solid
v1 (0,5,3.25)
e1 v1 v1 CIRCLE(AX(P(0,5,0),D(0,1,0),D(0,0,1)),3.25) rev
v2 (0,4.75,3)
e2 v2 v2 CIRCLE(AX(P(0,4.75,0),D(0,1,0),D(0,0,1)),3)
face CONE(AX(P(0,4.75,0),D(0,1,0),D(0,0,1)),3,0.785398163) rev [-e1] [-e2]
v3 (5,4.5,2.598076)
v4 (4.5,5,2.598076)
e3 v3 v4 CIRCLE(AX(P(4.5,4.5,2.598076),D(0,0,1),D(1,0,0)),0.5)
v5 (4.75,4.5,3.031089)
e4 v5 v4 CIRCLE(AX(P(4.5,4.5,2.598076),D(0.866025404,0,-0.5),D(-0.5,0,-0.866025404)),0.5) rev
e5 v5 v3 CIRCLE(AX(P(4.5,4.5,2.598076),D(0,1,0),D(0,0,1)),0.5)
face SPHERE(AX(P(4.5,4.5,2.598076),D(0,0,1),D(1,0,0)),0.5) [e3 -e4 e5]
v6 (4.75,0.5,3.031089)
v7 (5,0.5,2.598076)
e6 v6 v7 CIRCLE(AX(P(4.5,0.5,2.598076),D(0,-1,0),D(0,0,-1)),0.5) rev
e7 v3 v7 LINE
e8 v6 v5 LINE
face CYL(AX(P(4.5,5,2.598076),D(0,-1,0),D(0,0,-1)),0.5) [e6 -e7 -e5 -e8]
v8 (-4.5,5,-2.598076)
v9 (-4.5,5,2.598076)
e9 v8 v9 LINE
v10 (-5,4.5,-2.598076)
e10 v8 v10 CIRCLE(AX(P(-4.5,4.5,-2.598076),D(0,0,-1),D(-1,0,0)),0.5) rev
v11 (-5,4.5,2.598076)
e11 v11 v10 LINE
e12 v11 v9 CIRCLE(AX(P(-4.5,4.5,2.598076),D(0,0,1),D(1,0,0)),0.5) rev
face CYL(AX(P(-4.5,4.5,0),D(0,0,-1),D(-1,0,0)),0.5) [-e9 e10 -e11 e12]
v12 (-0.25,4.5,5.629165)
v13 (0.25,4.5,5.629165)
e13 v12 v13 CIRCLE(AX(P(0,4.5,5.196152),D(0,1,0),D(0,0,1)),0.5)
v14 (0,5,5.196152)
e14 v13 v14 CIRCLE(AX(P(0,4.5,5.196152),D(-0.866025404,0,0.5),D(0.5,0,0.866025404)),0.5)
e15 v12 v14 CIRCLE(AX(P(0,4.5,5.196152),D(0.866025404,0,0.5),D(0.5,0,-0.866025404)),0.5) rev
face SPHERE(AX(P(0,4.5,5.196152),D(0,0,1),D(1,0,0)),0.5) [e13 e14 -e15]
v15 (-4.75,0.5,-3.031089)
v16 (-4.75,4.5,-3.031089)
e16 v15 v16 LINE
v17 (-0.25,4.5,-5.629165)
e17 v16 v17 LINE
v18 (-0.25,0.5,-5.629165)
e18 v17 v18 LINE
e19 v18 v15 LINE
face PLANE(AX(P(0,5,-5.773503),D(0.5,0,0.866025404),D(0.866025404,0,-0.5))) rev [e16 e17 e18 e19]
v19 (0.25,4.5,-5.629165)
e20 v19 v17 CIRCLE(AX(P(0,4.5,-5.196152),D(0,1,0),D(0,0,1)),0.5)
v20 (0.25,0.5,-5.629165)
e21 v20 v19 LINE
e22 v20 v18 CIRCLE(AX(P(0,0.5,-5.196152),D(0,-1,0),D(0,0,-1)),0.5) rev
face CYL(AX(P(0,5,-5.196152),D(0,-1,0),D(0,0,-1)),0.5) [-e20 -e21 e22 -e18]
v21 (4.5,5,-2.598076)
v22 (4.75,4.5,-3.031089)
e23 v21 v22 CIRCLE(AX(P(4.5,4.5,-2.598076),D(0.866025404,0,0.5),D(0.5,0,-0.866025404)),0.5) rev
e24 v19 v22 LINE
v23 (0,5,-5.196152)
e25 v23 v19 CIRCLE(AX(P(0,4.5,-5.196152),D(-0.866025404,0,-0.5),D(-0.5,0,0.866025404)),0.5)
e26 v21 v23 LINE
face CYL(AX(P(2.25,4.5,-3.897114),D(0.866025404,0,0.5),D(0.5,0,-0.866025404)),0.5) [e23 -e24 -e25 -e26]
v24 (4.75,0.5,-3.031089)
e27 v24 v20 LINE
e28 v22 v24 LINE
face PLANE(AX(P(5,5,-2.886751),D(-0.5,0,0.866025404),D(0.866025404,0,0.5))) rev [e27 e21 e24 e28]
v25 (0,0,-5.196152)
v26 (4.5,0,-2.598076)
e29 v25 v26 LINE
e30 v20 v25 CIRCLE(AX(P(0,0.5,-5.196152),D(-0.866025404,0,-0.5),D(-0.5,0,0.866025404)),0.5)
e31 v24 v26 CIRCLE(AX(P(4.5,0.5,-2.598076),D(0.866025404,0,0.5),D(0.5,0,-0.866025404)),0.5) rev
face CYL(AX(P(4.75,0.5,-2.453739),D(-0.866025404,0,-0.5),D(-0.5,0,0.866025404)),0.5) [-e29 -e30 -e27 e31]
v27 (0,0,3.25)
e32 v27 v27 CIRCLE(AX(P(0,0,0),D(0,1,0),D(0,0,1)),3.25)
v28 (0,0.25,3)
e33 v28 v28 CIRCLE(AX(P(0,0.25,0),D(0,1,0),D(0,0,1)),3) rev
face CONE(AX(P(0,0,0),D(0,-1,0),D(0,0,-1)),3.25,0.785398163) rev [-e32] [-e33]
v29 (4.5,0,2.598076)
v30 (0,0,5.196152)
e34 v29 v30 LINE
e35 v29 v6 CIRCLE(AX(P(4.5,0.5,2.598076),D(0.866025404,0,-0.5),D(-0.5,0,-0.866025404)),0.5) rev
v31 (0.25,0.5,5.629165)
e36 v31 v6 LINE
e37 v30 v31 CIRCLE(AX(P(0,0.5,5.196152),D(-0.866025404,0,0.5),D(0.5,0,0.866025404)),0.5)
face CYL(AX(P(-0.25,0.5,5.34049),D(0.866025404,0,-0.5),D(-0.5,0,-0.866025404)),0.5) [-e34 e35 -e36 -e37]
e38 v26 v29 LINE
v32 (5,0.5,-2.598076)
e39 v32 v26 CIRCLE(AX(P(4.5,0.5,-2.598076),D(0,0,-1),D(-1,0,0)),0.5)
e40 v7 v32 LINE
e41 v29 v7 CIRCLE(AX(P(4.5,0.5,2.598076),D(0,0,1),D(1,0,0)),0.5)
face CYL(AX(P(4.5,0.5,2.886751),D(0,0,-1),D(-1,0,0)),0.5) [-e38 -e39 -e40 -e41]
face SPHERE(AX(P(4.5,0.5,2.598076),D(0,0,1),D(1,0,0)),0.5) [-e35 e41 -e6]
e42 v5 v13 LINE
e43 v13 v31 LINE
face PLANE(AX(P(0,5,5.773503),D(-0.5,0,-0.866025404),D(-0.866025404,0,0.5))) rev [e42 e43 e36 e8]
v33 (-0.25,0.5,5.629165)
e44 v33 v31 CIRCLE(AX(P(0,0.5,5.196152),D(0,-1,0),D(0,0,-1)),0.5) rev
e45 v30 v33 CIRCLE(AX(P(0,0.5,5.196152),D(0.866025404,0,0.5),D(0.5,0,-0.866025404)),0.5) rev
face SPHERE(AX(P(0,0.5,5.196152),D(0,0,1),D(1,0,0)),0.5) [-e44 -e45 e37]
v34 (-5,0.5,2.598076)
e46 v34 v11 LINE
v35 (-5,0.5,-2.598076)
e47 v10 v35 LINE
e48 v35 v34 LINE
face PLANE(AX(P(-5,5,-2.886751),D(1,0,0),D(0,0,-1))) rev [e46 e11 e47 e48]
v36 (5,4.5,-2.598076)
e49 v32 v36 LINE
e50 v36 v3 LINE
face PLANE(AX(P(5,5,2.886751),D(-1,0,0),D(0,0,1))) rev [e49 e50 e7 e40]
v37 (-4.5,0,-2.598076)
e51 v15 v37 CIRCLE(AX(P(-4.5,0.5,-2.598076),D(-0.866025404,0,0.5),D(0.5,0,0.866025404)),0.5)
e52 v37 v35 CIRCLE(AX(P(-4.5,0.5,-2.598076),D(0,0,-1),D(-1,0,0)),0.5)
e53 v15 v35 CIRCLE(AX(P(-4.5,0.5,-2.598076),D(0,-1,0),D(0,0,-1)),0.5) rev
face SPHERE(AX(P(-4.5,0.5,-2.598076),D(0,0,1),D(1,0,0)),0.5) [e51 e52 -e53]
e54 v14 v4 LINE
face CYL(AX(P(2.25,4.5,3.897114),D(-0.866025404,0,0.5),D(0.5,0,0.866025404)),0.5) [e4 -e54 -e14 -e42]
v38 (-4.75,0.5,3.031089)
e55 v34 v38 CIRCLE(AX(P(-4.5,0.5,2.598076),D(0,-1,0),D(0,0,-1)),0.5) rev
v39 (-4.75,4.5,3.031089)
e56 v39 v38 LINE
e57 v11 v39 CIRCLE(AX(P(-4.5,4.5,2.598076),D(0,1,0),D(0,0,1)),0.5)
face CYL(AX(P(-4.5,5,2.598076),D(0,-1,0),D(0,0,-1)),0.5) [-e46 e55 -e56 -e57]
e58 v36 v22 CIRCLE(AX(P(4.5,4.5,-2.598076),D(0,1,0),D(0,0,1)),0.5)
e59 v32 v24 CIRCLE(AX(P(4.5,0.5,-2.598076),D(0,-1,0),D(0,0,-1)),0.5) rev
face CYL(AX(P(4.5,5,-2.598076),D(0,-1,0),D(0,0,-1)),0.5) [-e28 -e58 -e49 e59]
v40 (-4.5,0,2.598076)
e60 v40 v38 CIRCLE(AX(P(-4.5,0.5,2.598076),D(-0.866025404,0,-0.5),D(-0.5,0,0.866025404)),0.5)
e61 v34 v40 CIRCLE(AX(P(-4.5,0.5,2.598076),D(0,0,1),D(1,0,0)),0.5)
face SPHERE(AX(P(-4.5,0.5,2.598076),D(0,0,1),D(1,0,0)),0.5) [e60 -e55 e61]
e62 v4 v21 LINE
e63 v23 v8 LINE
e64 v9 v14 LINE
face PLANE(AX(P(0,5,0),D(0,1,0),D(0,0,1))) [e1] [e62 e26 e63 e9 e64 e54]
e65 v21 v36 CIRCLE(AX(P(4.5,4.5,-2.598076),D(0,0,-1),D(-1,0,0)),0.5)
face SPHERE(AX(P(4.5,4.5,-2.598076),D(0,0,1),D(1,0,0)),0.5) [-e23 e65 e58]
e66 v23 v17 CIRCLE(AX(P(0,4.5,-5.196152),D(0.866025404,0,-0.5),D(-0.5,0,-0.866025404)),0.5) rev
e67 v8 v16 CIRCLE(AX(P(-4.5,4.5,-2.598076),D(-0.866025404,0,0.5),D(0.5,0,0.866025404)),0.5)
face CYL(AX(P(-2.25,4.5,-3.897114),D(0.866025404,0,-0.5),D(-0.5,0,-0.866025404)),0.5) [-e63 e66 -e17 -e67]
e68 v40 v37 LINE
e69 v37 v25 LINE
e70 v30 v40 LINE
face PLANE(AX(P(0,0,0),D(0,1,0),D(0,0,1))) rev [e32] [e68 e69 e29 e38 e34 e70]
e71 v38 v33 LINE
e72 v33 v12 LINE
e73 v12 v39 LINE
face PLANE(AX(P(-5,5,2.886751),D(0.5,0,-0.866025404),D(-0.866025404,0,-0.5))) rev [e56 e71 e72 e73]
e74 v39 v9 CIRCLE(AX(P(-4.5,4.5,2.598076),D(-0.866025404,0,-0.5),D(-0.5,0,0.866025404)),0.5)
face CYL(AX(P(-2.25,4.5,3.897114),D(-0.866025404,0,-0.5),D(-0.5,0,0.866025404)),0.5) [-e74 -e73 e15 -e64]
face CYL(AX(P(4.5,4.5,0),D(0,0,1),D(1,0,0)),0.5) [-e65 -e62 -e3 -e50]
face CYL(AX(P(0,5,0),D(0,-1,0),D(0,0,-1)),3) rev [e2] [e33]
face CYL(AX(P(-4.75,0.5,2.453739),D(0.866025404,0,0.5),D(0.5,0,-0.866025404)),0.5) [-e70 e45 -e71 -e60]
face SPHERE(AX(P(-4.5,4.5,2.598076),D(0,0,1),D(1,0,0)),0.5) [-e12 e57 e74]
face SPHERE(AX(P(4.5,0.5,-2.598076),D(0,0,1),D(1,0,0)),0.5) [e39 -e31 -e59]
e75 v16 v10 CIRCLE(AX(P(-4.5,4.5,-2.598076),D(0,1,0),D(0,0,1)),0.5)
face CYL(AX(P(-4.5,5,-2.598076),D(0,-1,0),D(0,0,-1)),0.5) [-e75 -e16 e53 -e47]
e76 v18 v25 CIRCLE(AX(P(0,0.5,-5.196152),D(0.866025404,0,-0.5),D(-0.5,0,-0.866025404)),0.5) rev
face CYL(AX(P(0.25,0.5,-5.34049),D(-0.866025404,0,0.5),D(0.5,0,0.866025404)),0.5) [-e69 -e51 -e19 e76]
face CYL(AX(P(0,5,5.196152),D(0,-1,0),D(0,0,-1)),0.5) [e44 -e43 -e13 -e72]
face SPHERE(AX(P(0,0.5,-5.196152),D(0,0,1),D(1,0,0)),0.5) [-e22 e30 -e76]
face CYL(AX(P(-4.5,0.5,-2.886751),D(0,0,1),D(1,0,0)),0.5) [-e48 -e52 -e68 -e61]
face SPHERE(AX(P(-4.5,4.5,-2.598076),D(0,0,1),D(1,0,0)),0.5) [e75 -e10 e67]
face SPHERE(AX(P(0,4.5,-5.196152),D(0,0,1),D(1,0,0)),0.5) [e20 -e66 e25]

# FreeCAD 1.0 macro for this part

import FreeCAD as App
import Part
import Sketcher

V = App.Vector
Q = App.Units.Quantity


def edges_at(feature, points):
    """Names of the edges that pass closest to the given points."""
    edges = feature.Shape.Edges
    near = lambda p: min(range(len(edges)), key=lambda i: edges[i].distToShape(Part.Vertex(*p))[0])
    return sorted({f"Edge{near(p) + 1}" for p in points})

doc = App.newDocument("Part")
body = doc.addObject("PartDesign::Body", "Body")

sketch1 = body.newObject("Sketcher::SketchObject", "Sketch")
sketch1.AttachmentSupport = (doc.getObject("XZ_Plane"), [""])
sketch1.MapMode = "FlatFace"
sketch1.addGeometry([
    Part.LineSegment(V(0, -5.773503, 0), V(-5, -2.886751, 0)),
    Part.LineSegment(V(-5, -2.886751, 0), V(-5, 2.886751, 0)),
    Part.LineSegment(V(-5, 2.886751, 0), V(0, 5.773503, 0)),
    Part.LineSegment(V(0, 5.773503, 0), V(5, 2.886751, 0)),
    Part.LineSegment(V(5, 2.886751, 0), V(5, -2.886751, 0)),
    Part.LineSegment(V(5, -2.886751, 0), V(0, -5.773503, 0)),
    Part.Circle(V(0, 0, 0), V(0, 0, 1), 3),
], False)
sketch1.addConstraint([
    Sketcher.Constraint("Coincident", 0, 2, 1, 1),
    Sketcher.Constraint("Coincident", 1, 2, 2, 1),
    Sketcher.Constraint("Coincident", 2, 2, 3, 1),
    Sketcher.Constraint("Coincident", 3, 2, 4, 1),
    Sketcher.Constraint("Coincident", 4, 2, 5, 1),
    Sketcher.Constraint("Coincident", 5, 2, 0, 1),
    Sketcher.Constraint("Vertical", 1),
    Sketcher.Constraint("Vertical", 4),
    Sketcher.Constraint("Coincident", 6, 3, -1, 1),
    Sketcher.Constraint("Symmetric", 0, 2, 3, 2, -1, 1),
    Sketcher.Constraint("Symmetric", 2, 2, 5, 2, -1, 1),
    Sketcher.Constraint("PointOnObject", 2, 2, -2),
    Sketcher.Constraint("Parallel", 2, 5),
    Sketcher.Constraint("Horizontal", 1, 2, 3, 2),
    Sketcher.Constraint("Diameter", 6, 6.0),
    Sketcher.Constraint("Angle", 0, Q("150 deg")),
    Sketcher.Constraint("DistanceX", 0, 2, -1, 1, 5.0),
    Sketcher.Constraint("DistanceY", 1, 1, 1, 2, 5.773503),
])
pad1 = body.newObject("PartDesign::Pad", "Pad")
pad1.Profile = sketch1
pad1.Length = 5
pad1.Reversed = True
doc.recompute()

fillet = body.newObject("PartDesign::Fillet", "Fillet")
fillet.Base = (pad1, edges_at(pad1, [
    (-5, 5, 0),
    (5, 2.5, -2.887),
    (5, 2.5, 2.887),
    (0, 2.5, 5.774),
    (-5, 2.5, 2.887),
    (-5, 2.5, -2.887),
    (0, 2.5, -5.774),
    (-2.5, 5, 4.33),
    (2.5, 5, 4.33),
    (5, 5, 0),
    (2.5, 5, -4.33),
    (5, 0, 0),
    (2.5, 0, 4.33),
    (-2.5, 0, 4.33),
    (-2.5, 5, -4.33),
    (-5, 0, 0),
    (-2.5, 0, -4.33),
    (2.5, 0, -4.33),
]))
fillet.Radius = 0.5
doc.recompute()

chamfer = body.newObject("PartDesign::Chamfer", "Chamfer")
chamfer.Base = (fillet, edges_at(fillet, [(-3, 0, 0), (-3, 5, 0)]))
chamfer.Size = 0.25

doc.recompute()
